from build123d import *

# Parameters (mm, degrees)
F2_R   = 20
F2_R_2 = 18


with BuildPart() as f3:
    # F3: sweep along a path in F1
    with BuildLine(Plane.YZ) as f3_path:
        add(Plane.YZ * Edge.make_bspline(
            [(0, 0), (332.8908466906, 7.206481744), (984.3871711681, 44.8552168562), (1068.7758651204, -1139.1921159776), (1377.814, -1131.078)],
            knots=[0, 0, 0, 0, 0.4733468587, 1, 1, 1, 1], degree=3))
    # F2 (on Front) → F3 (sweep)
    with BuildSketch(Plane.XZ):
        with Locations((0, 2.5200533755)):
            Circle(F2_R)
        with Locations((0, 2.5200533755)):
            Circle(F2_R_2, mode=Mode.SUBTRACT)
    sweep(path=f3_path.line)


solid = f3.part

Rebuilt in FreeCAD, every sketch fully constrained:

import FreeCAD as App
import Part
import Sketcher
from FreeCAD import Vector
Q = App.Units.Quantity

doc = App.newDocument("Part")
body = doc.addObject("PartDesign::Body", "Body")

# Sketch on XZ plane
sketch1 = body.newObject("Sketcher::SketchObject", "Sketch")
sketch1.AttachmentSupport = (doc.getObject("XZ_Plane"), [""])
sketch1.MapMode = "FlatFace"
sketch1.addGeometry([
    Part.Circle(Vector(0, 3, 0), Vector(0, 0, 1), 20),
    Part.Circle(Vector(0, 3, 0), Vector(0, 0, 1), 18),
], False)
sketch1.addConstraint([
    Sketcher.Constraint("Coincident", 1, 3, 0, 3),
    Sketcher.Constraint("PointOnObject", 0, 3, -2),
    Sketcher.Constraint("Diameter", 0, Q("40 mm")),
    Sketcher.Constraint("Diameter", 1, Q("36 mm")),
    Sketcher.Constraint("DistanceY", -1, 1, 0, 3, Q("2.520053 mm")),
])

# Sketch on YZ plane
sketch2 = body.newObject("Sketcher::SketchObject", "Sketch001")
sketch2.AttachmentSupport = (doc.getObject("YZ_Plane"), [""])
sketch2.MapMode = "FlatFace"
sketch2.addGeometry(Part.BSplineCurve([Vector(0, 0, 0), Vector(332.890847, 7.206482, 0), Vector(984.387171, 44.855217, 0), Vector(1068.775865, -1139.192116, 0), Vector(1377.814, -1131.078, 0)], [4, 1, 4], [0, 0.473346859, 1], False, 3, [1, 1, 1, 1, 1], False), False)
sketch2.addConstraint(Sketcher.Constraint("Block", 0))
doc.recompute()

additivepipe = body.newObject("PartDesign::AdditivePipe", "AdditivePipe")
additivepipe.Profile = sketch1
additivepipe.Spine = (sketch2, ["Edge1"])

doc.recompute()
